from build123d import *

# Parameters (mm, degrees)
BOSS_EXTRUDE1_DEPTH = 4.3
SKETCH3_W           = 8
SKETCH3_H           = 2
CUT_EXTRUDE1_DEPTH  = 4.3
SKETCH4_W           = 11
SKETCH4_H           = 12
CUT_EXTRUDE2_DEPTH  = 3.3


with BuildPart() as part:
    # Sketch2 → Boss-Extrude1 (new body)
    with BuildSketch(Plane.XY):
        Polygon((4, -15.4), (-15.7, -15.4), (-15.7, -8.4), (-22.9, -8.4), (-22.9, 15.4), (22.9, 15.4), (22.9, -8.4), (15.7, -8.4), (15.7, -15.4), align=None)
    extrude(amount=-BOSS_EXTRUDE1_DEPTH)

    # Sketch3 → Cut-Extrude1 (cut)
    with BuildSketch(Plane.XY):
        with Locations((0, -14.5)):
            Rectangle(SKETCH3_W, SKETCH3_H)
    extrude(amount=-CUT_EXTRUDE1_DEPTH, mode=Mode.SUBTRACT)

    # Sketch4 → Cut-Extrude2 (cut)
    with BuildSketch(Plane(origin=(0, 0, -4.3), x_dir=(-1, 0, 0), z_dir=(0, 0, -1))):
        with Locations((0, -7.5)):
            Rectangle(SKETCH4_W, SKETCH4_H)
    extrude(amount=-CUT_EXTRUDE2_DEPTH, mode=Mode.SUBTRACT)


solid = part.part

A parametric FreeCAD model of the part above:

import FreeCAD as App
import Part
import Sketcher


def add_polygon(sketch, points):
    """Adds a closed chain of lines whose ends are joined by coincident constraints."""
    first, n = sketch.GeometryCount, len(points)
    for a, b in zip(points, points[1:] + points[:1]):
        sketch.addGeometry(Part.LineSegment(App.Vector(*a, 0), App.Vector(*b, 0)), False)
    for i in range(n):
        sketch.addConstraint(Sketcher.Constraint("Coincident", first + i, 2, first + (i + 1) % n, 1))

doc = App.newDocument("Part")
body = doc.addObject("PartDesign::Body", "Body")

# Sketch on XY plane
sketch1 = doc.addObject("Sketcher::SketchObject", "Sketch")
body.addObject(sketch1)
sketch1.AttachmentSupport = (doc.XY_Plane, [""])
sketch1.MapMode = "FlatFace"
add_polygon(sketch1, [(-16, -15), (16, -15), (16, -8), (23, -8), (23, 15), (-23, 15), (-23, -8), (-16, -8)])  # lines 0-7
sketch1.addConstraint([
    Sketcher.Constraint("Horizontal", 0),
    Sketcher.Constraint("Vertical", 1),
    Sketcher.Constraint("Horizontal", 2),
    Sketcher.Constraint("Vertical", 3),
    Sketcher.Constraint("Horizontal", 4),
    Sketcher.Constraint("Vertical", 5),
    Sketcher.Constraint("Horizontal", 6),
    Sketcher.Constraint("Vertical", 7),
    Sketcher.Constraint("Symmetric", 2, 2, 5, 2, -2),
    Sketcher.Constraint("Equal", 2, 6),
    Sketcher.Constraint("DistanceY", 1, 1, 1, 2, 7.0),
    Sketcher.Constraint("DistanceX", 0, 1, 0, 2, 31.4),
    Sketcher.Constraint("DistanceX", 2, 1, 2, 2, 7.2),
    Sketcher.Constraint("DistanceY", 3, 1, 3, 2, 23.8),
    Sketcher.Constraint("DistanceY", 0, 2, -1, 1, 15.4),
])
pad1 = doc.addObject("PartDesign::Pad", "Pad")
body.addObject(pad1)
pad1.Profile = sketch1
pad1.Length = 4.3
pad1.Reversed = True

# Sketch on XY plane
sketch2 = doc.addObject("Sketcher::SketchObject", "Sketch001")
body.addObject(sketch2)
sketch2.AttachmentSupport = (doc.XY_Plane, [""])
sketch2.MapMode = "FlatFace"
add_polygon(sketch2, [(-4, -13.5), (-4, -15.5), (4, -15.5), (4, -13.5)])  # lines 0-3
sketch2.addConstraint([
    Sketcher.Constraint("Vertical", 0),
    Sketcher.Constraint("Horizontal", 1),
    Sketcher.Constraint("Vertical", 2),
    Sketcher.Constraint("Horizontal", 3),
    Sketcher.Constraint("DistanceX", 1, 1, 1, 2, 8.0),
    Sketcher.Constraint("DistanceY", 0, 2, 0, 1, 2.0),
    Sketcher.Constraint("DistanceX", 0, 2, -1, 1, 4.0),
    Sketcher.Constraint("DistanceY", 0, 2, -1, 1, 15.5),
])
pocket1 = doc.addObject("PartDesign::Pocket", "Pocket")
body.addObject(pocket1)
pocket1.Profile = sketch2
pocket1.Length = 4.3

# Sketch on XY plane
sketch3 = doc.addObject("Sketcher::SketchObject", "Sketch002")
body.addObject(sketch3)
sketch3.AttachmentSupport = (doc.XY_Plane, [""])
sketch3.MapMode = "FlatFace"
sketch3.AttachmentOffset = App.Placement(App.Vector(0, 0, -4.3), App.Rotation())
add_polygon(sketch3, [(6, -2), (6, -14), (-6, -14), (-6, -2)])  # lines 0-3
sketch3.addConstraint([
    Sketcher.Constraint("Vertical", 0),
    Sketcher.Constraint("Horizontal", 1),
    Sketcher.Constraint("Vertical", 2),
    Sketcher.Constraint("Horizontal", 3),
    Sketcher.Constraint("DistanceX", 1, 2, 1, 1, 11.0),
    Sketcher.Constraint("DistanceY", 0, 2, 0, 1, 12.0),
    Sketcher.Constraint("DistanceX", -1, 1, 0, 2, 5.5),
    Sketcher.Constraint("DistanceY", 0, 2, -1, 1, 13.5),
])
pocket2 = doc.addObject("PartDesign::Pocket", "Pocket001")
body.addObject(pocket2)
pocket2.Profile = sketch3
pocket2.Length = 3.3
pocket2.Reversed = True

doc.recompute()
